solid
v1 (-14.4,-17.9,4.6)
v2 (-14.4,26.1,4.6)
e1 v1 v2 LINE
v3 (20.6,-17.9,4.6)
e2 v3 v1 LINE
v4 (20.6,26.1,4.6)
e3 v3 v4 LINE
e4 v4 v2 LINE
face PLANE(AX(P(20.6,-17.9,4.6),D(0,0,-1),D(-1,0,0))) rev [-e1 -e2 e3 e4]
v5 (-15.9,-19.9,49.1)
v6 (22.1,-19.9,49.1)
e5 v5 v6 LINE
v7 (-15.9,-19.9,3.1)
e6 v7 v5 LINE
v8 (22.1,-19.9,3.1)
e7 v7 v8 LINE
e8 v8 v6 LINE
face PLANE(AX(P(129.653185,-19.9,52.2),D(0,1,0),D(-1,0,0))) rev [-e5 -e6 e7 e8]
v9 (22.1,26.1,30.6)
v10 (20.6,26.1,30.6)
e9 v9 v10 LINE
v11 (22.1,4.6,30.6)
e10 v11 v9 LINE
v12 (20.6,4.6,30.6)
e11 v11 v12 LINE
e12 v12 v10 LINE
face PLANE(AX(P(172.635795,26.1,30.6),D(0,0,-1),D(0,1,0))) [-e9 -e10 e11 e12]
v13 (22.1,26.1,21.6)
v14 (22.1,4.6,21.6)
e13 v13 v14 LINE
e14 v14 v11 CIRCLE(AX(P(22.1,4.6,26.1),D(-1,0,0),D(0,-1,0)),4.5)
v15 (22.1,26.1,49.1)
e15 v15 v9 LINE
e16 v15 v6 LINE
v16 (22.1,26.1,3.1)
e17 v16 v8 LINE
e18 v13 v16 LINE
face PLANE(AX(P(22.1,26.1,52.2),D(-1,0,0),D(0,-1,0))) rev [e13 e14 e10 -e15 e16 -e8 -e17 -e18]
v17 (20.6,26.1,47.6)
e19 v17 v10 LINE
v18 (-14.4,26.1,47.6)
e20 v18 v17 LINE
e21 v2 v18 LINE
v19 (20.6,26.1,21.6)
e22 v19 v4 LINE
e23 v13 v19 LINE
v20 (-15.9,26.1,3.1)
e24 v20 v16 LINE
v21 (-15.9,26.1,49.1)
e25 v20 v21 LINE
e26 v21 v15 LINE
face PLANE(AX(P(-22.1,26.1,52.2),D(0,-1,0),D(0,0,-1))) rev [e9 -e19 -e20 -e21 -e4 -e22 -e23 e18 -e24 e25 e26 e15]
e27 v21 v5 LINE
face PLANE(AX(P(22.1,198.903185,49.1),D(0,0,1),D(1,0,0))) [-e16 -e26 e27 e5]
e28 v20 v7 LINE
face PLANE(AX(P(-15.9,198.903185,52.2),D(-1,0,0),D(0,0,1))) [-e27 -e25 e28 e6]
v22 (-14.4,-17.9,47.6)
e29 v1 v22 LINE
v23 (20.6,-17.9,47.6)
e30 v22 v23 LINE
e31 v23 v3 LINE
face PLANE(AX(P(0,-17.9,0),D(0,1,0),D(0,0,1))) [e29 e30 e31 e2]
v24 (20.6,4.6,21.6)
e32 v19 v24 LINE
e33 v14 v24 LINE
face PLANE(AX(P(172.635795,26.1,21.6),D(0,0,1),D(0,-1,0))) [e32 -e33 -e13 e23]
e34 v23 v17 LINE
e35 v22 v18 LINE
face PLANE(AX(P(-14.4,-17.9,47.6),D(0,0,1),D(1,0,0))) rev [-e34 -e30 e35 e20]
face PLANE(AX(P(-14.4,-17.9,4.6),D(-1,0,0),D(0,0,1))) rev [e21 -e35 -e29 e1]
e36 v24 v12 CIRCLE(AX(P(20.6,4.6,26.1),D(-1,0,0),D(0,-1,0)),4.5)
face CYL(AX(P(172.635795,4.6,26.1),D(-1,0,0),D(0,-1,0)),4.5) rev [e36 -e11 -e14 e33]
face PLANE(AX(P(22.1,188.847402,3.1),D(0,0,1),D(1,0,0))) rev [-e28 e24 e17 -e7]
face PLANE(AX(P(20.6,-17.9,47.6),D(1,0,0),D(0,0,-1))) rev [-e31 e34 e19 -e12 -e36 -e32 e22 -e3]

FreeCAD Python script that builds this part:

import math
import FreeCAD as App
import Part
import Sketcher
Q = App.Units.Quantity

doc = App.newDocument("Part")
params = doc.addObject("Spreadsheet::Sheet", "Params")
for row, (alias, value) in enumerate([
    ("sketch1_width", "44.2 mm"),
    ("sketch1_height", "52.2 mm"),
    ("pad1_length", "52.2 mm"),
    ("sketch2_width", "1 mm"),
    ("sketch2_height", "3.7 mm"),
    ("sketch2_width2", "1.55 mm"),
    ("sketch2_length", "5.06 mm"),
    ("sketch3_width", "1 mm"),
    ("sketch3_height", "3.7 mm"),
    ("sketch3_width2", "1.55 mm"),
    ("sketch3_length", "5.06 mm"),
    ("sketch4_width", "1 mm"),
    ("sketch4_height", "3.7 mm"),
    ("sketch4_width2", "1.55 mm"),
    ("sketch4_length", "5.06 mm"),
    ("pocket3_length", "78.059003 mm"),
    ("pocket3_length2", "46 mm"),
    ("sketch5_width", "1 mm"),
    ("sketch5_height", "3.7 mm"),
    ("sketch5_width2", "1.55 mm"),
    ("sketch5_length", "5.06 mm"),
    ("pocket4_length", "78.059003 mm"),
    ("pocket4_length2", "46 mm"),
    ("sketch9_width", "35 mm"),
    ("sketch9_height", "43 mm"),
    ("pocket8_length", "44 mm"),
    ("sketch10_radius", "4.5 mm"),
    ("sketch10_width", "21.5 mm"),
    ("pocket9_length", "72.032809 mm"),
    ("pocket9_length2", "1.5 mm"),
], start=1):
    params.set(f"A{row}", alias)
    params.set(f"B{row}", "=" + value)
    params.setAlias(f"B{row}", alias)

body = doc.addObject("PartDesign::Body", "Body")

sketch1 = body.newObject("Sketcher::SketchObject", "Sketch")
sketch1.AttachmentSupport = (doc.getObject("XY_Plane"), [""])
sketch1.MapMode = "FlatFace"
sketch1.addGeometry([
    Part.LineSegment(App.Vector(-22.1, 26.1, 0), App.Vector(-22.1, -26.1, 0)),
    Part.LineSegment(App.Vector(-22.1, -26.1, 0), App.Vector(22.1, -26.1, 0)),
    Part.LineSegment(App.Vector(22.1, -26.1, 0), App.Vector(22.1, 26.1, 0)),
    Part.LineSegment(App.Vector(22.1, 26.1, 0), App.Vector(-22.1, 26.1, 0)),
], False)
sketch1.addConstraint([
    Sketcher.Constraint("Coincident", 0, 2, 1, 1),
    Sketcher.Constraint("Coincident", 1, 2, 2, 1),
    Sketcher.Constraint("Coincident", 2, 2, 3, 1),
    Sketcher.Constraint("Coincident", 3, 2, 0, 1),
    Sketcher.Constraint("Vertical", 0),
    Sketcher.Constraint("Horizontal", 1),
    Sketcher.Constraint("Vertical", 2),
    Sketcher.Constraint("Horizontal", 3),
    Sketcher.Constraint("Symmetric", 0, 2, 2, 2, -1, 1),
    Sketcher.Constraint("DistanceX", 1, 1, 1, 2, Q("44.2 mm")),
    Sketcher.Constraint("DistanceY", 0, 2, 0, 1, Q("52.2 mm")),
])
sketch1.setExpression("Constraints[9]", "Params.sketch1_width")
sketch1.setExpression("Constraints[10]", "Params.sketch1_height")
pad1 = body.newObject("PartDesign::Pad", "Pad")
pad1.Profile = sketch1
pad1.setExpression("Length", "Params.pad1_length")

sketch2 = body.newObject("Sketcher::SketchObject", "Sketch001")
sketch2.AttachmentSupport = (doc.getObject("YZ_Plane"), [""])
sketch2.MapMode = "FlatFace"
sketch2.AttachmentOffset = App.Placement(App.Vector(0, 0, 22.1), App.Rotation())
sketch2.addGeometry([
    Part.LineSegment(App.Vector(-19.9, 28.55, 0), App.Vector(-19.9, 201.352291, 0)),
    Part.LineSegment(App.Vector(-19.9, 201.352291, 0), App.Vector(-295.671743, 315.086933, 0)),
    Part.LineSegment(App.Vector(-295.671743, 315.086933, 0), App.Vector(-409.461834, 39.180744, 0)),
    Part.LineSegment(App.Vector(-409.461834, 39.180744, 0), App.Vector(-133.690091, -74.553898, 0)),
    Part.LineSegment(App.Vector(-133.690091, -74.553898, 0), App.Vector(-26.1, 28.74556, 0)),
    Part.LineSegment(App.Vector(-26.1, 28.74556, 0), App.Vector(-22.45, 32.25, 0)),
    Part.LineSegment(App.Vector(-22.45, 32.25, 0), App.Vector(-21.45, 32.25, 0)),
    Part.LineSegment(App.Vector(-21.45, 32.25, 0), App.Vector(-21.45, 28.55, 0)),
    Part.LineSegment(App.Vector(-21.45, 28.55, 0), App.Vector(-19.9, 28.55, 0)),
], False)
sketch2.addConstraint([
    Sketcher.Constraint("Coincident", 0, 2, 1, 1),
    Sketcher.Constraint("Coincident", 1, 2, 2, 1),
    Sketcher.Constraint("Coincident", 2, 2, 3, 1),
    Sketcher.Constraint("Coincident", 3, 2, 4, 1),
    Sketcher.Constraint("Coincident", 4, 2, 5, 1),
    Sketcher.Constraint("Coincident", 5, 2, 6, 1),
    Sketcher.Constraint("Coincident", 6, 2, 7, 1),
    Sketcher.Constraint("Coincident", 7, 2, 8, 1),
    Sketcher.Constraint("Coincident", 8, 2, 0, 1),
    Sketcher.Constraint("Vertical", 0),
    Sketcher.Constraint("Horizontal", 6),
    Sketcher.Constraint("Vertical", 7),
    Sketcher.Constraint("Horizontal", 8),
    Sketcher.Constraint("Perpendicular", 1, 2),
    Sketcher.Constraint("Perpendicular", 2, 3),
    Sketcher.Constraint("Parallel", 4, 5),
    Sketcher.Constraint("Equal", 1, 3),
    Sketcher.Constraint("DistanceX", 6, 1, 6, 2, Q("1 mm")),
    Sketcher.Constraint("DistanceY", 7, 2, 7, 1, Q("3.7 mm")),
    Sketcher.Constraint("DistanceX", 8, 1, 8, 2, Q("1.55 mm")),
    Sketcher.Constraint("DistanceX", 0, 2, -1, 1, Q("19.9 mm")),
    Sketcher.Constraint("DistanceX", 4, 2, -1, 1, Q("26.1 mm")),
    Sketcher.Constraint("Distance", 5, Q("5.06 mm")),
    Sketcher.Constraint("DistanceY", -1, 1, 5, 2, Q("32.25 mm")),
    Sketcher.Constraint("DistanceY", 0, 1, 0, 2, Q("172.802291 mm")),
    Sketcher.Constraint("DistanceY", 3, 2, -1, 1, Q("74.553898 mm")),
    Sketcher.Constraint("Distance", 1, Q("298.304581 mm")),
])
sketch2.setExpression("Constraints[17]", "Params.sketch2_width")
sketch2.setExpression("Constraints[18]", "Params.sketch2_height")
sketch2.setExpression("Constraints[19]", "Params.sketch2_width2")
sketch2.setExpression("Constraints[22]", "Params.sketch2_length")
pocket1 = body.newObject("PartDesign::Pocket", "Pocket")
pocket1.Profile = sketch2
pocket1.Type = "ThroughAll"
pocket1.Midplane = True

sketch3 = body.newObject("Sketcher::SketchObject", "Sketch002")
sketch3.AttachmentSupport = (doc.getObject("YZ_Plane"), [""])
sketch3.MapMode = "FlatFace"
sketch3.AttachmentOffset = App.Placement(App.Vector(0, 0, 22.1), App.Rotation())
sketch3.addGeometry([
    Part.LineSegment(App.Vector(-19.9, -149.152291, 0), App.Vector(-19.9, 23.65, 0)),
    Part.LineSegment(App.Vector(-19.9, 23.65, 0), App.Vector(-21.45, 23.65, 0)),
    Part.LineSegment(App.Vector(-21.45, 23.65, 0), App.Vector(-21.45, 19.95, 0)),
    Part.LineSegment(App.Vector(-21.45, 19.95, 0), App.Vector(-22.45, 19.95, 0)),
    Part.LineSegment(App.Vector(-22.45, 19.95, 0), App.Vector(-26.1, 23.45444, 0)),
    Part.LineSegment(App.Vector(-26.1, 23.45444, 0), App.Vector(-133.690091, 126.753898, 0)),
    Part.LineSegment(App.Vector(-133.690091, 126.753898, 0), App.Vector(-409.461834, 13.019256, 0)),
    Part.LineSegment(App.Vector(-409.461834, 13.019256, 0), App.Vector(-295.671743, -262.886933, 0)),
    Part.LineSegment(App.Vector(-295.671743, -262.886933, 0), App.Vector(-19.9, -149.152291, 0)),
], False)
sketch3.addConstraint([
    Sketcher.Constraint("Coincident", 0, 2, 1, 1),
    Sketcher.Constraint("Coincident", 1, 2, 2, 1),
    Sketcher.Constraint("Coincident", 2, 2, 3, 1),
    Sketcher.Constraint("Coincident", 3, 2, 4, 1),
    Sketcher.Constraint("Coincident", 4, 2, 5, 1),
    Sketcher.Constraint("Coincident", 5, 2, 6, 1),
    Sketcher.Constraint("Coincident", 6, 2, 7, 1),
    Sketcher.Constraint("Coincident", 7, 2, 8, 1),
    Sketcher.Constraint("Coincident", 8, 2, 0, 1),
    Sketcher.Constraint("Vertical", 0),
    Sketcher.Constraint("Horizontal", 1),
    Sketcher.Constraint("Vertical", 2),
    Sketcher.Constraint("Horizontal", 3),
    Sketcher.Constraint("Parallel", 4, 5),
    Sketcher.Constraint("Perpendicular", 6, 7),
    Sketcher.Constraint("Perpendicular", 7, 8),
    Sketcher.Constraint("Equal", 6, 8),
    Sketcher.Constraint("DistanceX", 3, 2, 3, 1, Q("1 mm")),
    Sketcher.Constraint("DistanceY", 2, 2, 2, 1, Q("3.7 mm")),
    Sketcher.Constraint("DistanceX", 1, 2, 1, 1, Q("1.55 mm")),
    Sketcher.Constraint("DistanceX", 0, 2, -1, 1, Q("19.9 mm")),
    Sketcher.Constraint("DistanceX", 4, 2, -1, 1, Q("26.1 mm")),
    Sketcher.Constraint("Distance", 4, Q("5.06 mm")),
    Sketcher.Constraint("DistanceY", -1, 1, 0, 2, Q("23.65 mm")),
    Sketcher.Constraint("DistanceY", 0, 1, 0, 2, Q("172.802291 mm")),
    Sketcher.Constraint("DistanceY", -1, 1, 5, 2, Q("126.753898 mm")),
    Sketcher.Constraint("Distance", 6, Q("298.304581 mm")),
])
sketch3.setExpression("Constraints[17]", "Params.sketch3_width")
sketch3.setExpression("Constraints[18]", "Params.sketch3_height")
sketch3.setExpression("Constraints[19]", "Params.sketch3_width2")
sketch3.setExpression("Constraints[22]", "Params.sketch3_length")
pocket2 = body.newObject("PartDesign::Pocket", "Pocket001")
pocket2.Profile = sketch3
pocket2.Type = "ThroughAll"
pocket2.Midplane = True

sketch4 = body.newObject("Sketcher::SketchObject", "Sketch003")
sketch4.AttachmentSupport = (doc.getObject("XZ_Plane"), [""])
sketch4.MapMode = "FlatFace"
sketch4.AttachmentOffset = App.Placement(App.Vector(0, 0, -26.1), App.Rotation())
sketch4.addGeometry([
    Part.LineSegment(App.Vector(-15.9, 191.33311, 0), App.Vector(-15.9, 28.55, 0)),
    Part.LineSegment(App.Vector(-15.9, 28.55, 0), App.Vector(-17.45, 28.55, 0)),
    Part.LineSegment(App.Vector(-17.45, 28.55, 0), App.Vector(-17.45, 32.25, 0)),
    Part.LineSegment(App.Vector(-17.45, 32.25, 0), App.Vector(-18.45, 32.25, 0)),
    Part.LineSegment(App.Vector(-18.45, 32.25, 0), App.Vector(-22.1, 28.74556, 0)),
    Part.LineSegment(App.Vector(-22.1, 28.74556, 0), App.Vector(-122.462816, -67.614843, 0)),
    Part.LineSegment(App.Vector(-122.462816, -67.614843, 0), App.Vector(-379.791465, 38.281593, 0)),
    Part.LineSegment(App.Vector(-379.791465, 38.281593, 0), App.Vector(-273.228649, 297.229546, 0)),
    Part.LineSegment(App.Vector(-273.228649, 297.229546, 0), App.Vector(-15.9, 191.33311, 0)),
], False)
sketch4.addConstraint([
    Sketcher.Constraint("Coincident", 0, 2, 1, 1),
    Sketcher.Constraint("Coincident", 1, 2, 2, 1),
    Sketcher.Constraint("Coincident", 2, 2, 3, 1),
    Sketcher.Constraint("Coincident", 3, 2, 4, 1),
    Sketcher.Constraint("Coincident", 4, 2, 5, 1),
    Sketcher.Constraint("Coincident", 5, 2, 6, 1),
    Sketcher.Constraint("Coincident", 6, 2, 7, 1),
    Sketcher.Constraint("Coincident", 7, 2, 8, 1),
    Sketcher.Constraint("Coincident", 8, 2, 0, 1),
    Sketcher.Constraint("Vertical", 0),
    Sketcher.Constraint("Horizontal", 1),
    Sketcher.Constraint("Vertical", 2),
    Sketcher.Constraint("Horizontal", 3),
    Sketcher.Constraint("Parallel", 4, 5),
    Sketcher.Constraint("Perpendicular", 6, 7),
    Sketcher.Constraint("Perpendicular", 7, 8),
    Sketcher.Constraint("Equal", 6, 8),
    Sketcher.Constraint("DistanceX", 3, 2, 3, 1, Q("1 mm")),
    Sketcher.Constraint("DistanceY", 2, 1, 2, 2, Q("3.7 mm")),
    Sketcher.Constraint("DistanceX", 1, 2, 1, 1, Q("1.55 mm")),
    Sketcher.Constraint("DistanceX", 0, 2, -1, 1, Q("15.9 mm")),
    Sketcher.Constraint("DistanceX", 4, 2, -1, 1, Q("22.1 mm")),
    Sketcher.Constraint("Distance", 4, Q("5.06 mm")),
    Sketcher.Constraint("DistanceY", -1, 1, 0, 2, Q("28.55 mm")),
    Sketcher.Constraint("DistanceY", 0, 2, 0, 1, Q("162.78311 mm")),
    Sketcher.Constraint("Distance", 5, Q("139.13311 mm")),
    Sketcher.Constraint("Distance", 6, Q("278.266219 mm")),
])
sketch4.setExpression("Constraints[17]", "Params.sketch4_width")
sketch4.setExpression("Constraints[18]", "Params.sketch4_height")
sketch4.setExpression("Constraints[19]", "Params.sketch4_width2")
sketch4.setExpression("Constraints[22]", "Params.sketch4_length")
pocket3 = body.newObject("PartDesign::Pocket", "Pocket002")
pocket3.Profile = sketch4
pocket3.Type = "TwoLengths"
pocket3.setExpression("Length", "Params.pocket3_length")
pocket3.setExpression("Length2", "Params.pocket3_length2")

sketch5 = body.newObject("Sketcher::SketchObject", "Sketch004")
sketch5.AttachmentSupport = (doc.getObject("XZ_Plane"), [""])
sketch5.MapMode = "FlatFace"
sketch5.AttachmentOffset = App.Placement(App.Vector(0, 0, -26.1), App.Rotation())
sketch5.addGeometry([
    Part.LineSegment(App.Vector(-15.9, 23.65, 0), App.Vector(-15.9, -139.13311, 0)),
    Part.LineSegment(App.Vector(-15.9, -139.13311, 0), App.Vector(-273.228649, -245.029546, 0)),
    Part.LineSegment(App.Vector(-273.228649, -245.029546, 0), App.Vector(-379.791465, 13.918407, 0)),
    Part.LineSegment(App.Vector(-379.791465, 13.918407, 0), App.Vector(-122.462816, 119.814843, 0)),
    Part.LineSegment(App.Vector(-122.462816, 119.814843, 0), App.Vector(-22.1, 23.45444, 0)),
    Part.LineSegment(App.Vector(-22.1, 23.45444, 0), App.Vector(-18.45, 19.95, 0)),
    Part.LineSegment(App.Vector(-18.45, 19.95, 0), App.Vector(-17.45, 19.95, 0)),
    Part.LineSegment(App.Vector(-17.45, 19.95, 0), App.Vector(-17.45, 23.65, 0)),
    Part.LineSegment(App.Vector(-17.45, 23.65, 0), App.Vector(-15.9, 23.65, 0)),
], False)
sketch5.addConstraint([
    Sketcher.Constraint("Coincident", 0, 2, 1, 1),
    Sketcher.Constraint("Coincident", 1, 2, 2, 1),
    Sketcher.Constraint("Coincident", 2, 2, 3, 1),
    Sketcher.Constraint("Coincident", 3, 2, 4, 1),
    Sketcher.Constraint("Coincident", 4, 2, 5, 1),
    Sketcher.Constraint("Coincident", 5, 2, 6, 1),
    Sketcher.Constraint("Coincident", 6, 2, 7, 1),
    Sketcher.Constraint("Coincident", 7, 2, 8, 1),
    Sketcher.Constraint("Coincident", 8, 2, 0, 1),
    Sketcher.Constraint("Vertical", 0),
    Sketcher.Constraint("Horizontal", 6),
    Sketcher.Constraint("Vertical", 7),
    Sketcher.Constraint("Horizontal", 8),
    Sketcher.Constraint("Perpendicular", 1, 2),
    Sketcher.Constraint("Perpendicular", 2, 3),
    Sketcher.Constraint("Parallel", 4, 5),
    Sketcher.Constraint("Equal", 1, 3),
    Sketcher.Constraint("DistanceX", 6, 1, 6, 2, Q("1 mm")),
    Sketcher.Constraint("DistanceY", 7, 1, 7, 2, Q("3.7 mm")),
    Sketcher.Constraint("DistanceX", 8, 1, 8, 2, Q("1.55 mm")),
    Sketcher.Constraint("DistanceX", 0, 2, -1, 1, Q("15.9 mm")),
    Sketcher.Constraint("DistanceX", 4, 2, -1, 1, Q("22.1 mm")),
    Sketcher.Constraint("Distance", 5, Q("5.06 mm")),
    Sketcher.Constraint("DistanceY", -1, 1, 5, 2, Q("19.95 mm")),
    Sketcher.Constraint("DistanceY", 0, 2, 0, 1, Q("162.78311 mm")),
    Sketcher.Constraint("Distance", 1, Q("278.266219 mm")),
    Sketcher.Constraint("Distance", 2, Q("280.017278 mm")),
])
sketch5.setExpression("Constraints[17]", "Params.sketch5_width")
sketch5.setExpression("Constraints[18]", "Params.sketch5_height")
sketch5.setExpression("Constraints[19]", "Params.sketch5_width2")
sketch5.setExpression("Constraints[22]", "Params.sketch5_length")
pocket4 = body.newObject("PartDesign::Pocket", "Pocket003")
pocket4.Profile = sketch5
pocket4.Type = "TwoLengths"
pocket4.setExpression("Length", "Params.pocket4_length")
pocket4.setExpression("Length2", "Params.pocket4_length2")

sketch6 = body.newObject("Sketcher::SketchObject", "Sketch005")
sketch6.AttachmentSupport = (doc.getObject("XY_Plane"), [""])
sketch6.MapMode = "FlatFace"
sketch6.AttachmentOffset = App.Placement(App.Vector(0, 0, 28.55), App.Rotation())
sketch6.addGeometry([
    Part.LineSegment(App.Vector(-15.9, -19.9, 0), App.Vector(-161.222842, -19.9, 0)),
    Part.LineSegment(App.Vector(-161.222842, -19.9, 0), App.Vector(-357.967952, -216.653708, 0)),
    Part.LineSegment(App.Vector(-357.967952, -216.653708, 0), App.Vector(-212.645111, -361.9702, 0)),
    Part.LineSegment(App.Vector(-212.645111, -361.9702, 0), App.Vector(-15.9, -165.216491, 0)),
    Part.LineSegment(App.Vector(-15.9, -165.216491, 0), App.Vector(-15.9, -19.9, 0)),
], False)
sketch6.addConstraint([
    Sketcher.Constraint("Coincident", 0, 2, 1, 1),
    Sketcher.Constraint("Coincident", 1, 2, 2, 1),
    Sketcher.Constraint("Coincident", 2, 2, 3, 1),
    Sketcher.Constraint("Coincident", 3, 2, 4, 1),
    Sketcher.Constraint("Coincident", 4, 2, 0, 1),
    Sketcher.Constraint("Horizontal", 0),
    Sketcher.Constraint("Vertical", 4),
    Sketcher.Constraint("Perpendicular", 1, 2),
    Sketcher.Constraint("Perpendicular", 2, 3),
    Sketcher.Constraint("Equal", 1, 3),
    Sketcher.Constraint("DistanceY", 0, 2, -1, 1, Q("19.9 mm")),
    Sketcher.Constraint("DistanceX", 3, 2, -1, 1, Q("15.9 mm")),
    Sketcher.Constraint("DistanceX", 0, 2, 0, 1, Q("145.322842 mm")),
    Sketcher.Constraint("DistanceY", 4, 1, 4, 2, Q("145.316491 mm")),
    Sketcher.Constraint("DistanceY", 2, 2, -1, 1, Q("361.9702 mm")),
])
pocket5 = body.newObject("PartDesign::Pocket", "Pocket004")
pocket5.Profile = sketch6
pocket5.Type = "ThroughAll"
pocket5.Midplane = True

sketch7 = body.newObject("Sketcher::SketchObject", "Sketch006")
sketch7.AttachmentSupport = (doc.getObject("XZ_Plane"), [""])
sketch7.MapMode = "FlatFace"
sketch7.AttachmentOffset = App.Placement(App.Vector(0, 0, -26.1), App.Rotation())
sketch7.addGeometry([
    Part.LineSegment(App.Vector(164.227968, 49.1, 0), App.Vector(-158.027968, 49.1, 0)),
    Part.LineSegment(App.Vector(-158.027968, 49.1, 0), App.Vector(-158.027968, 333.355937, 0)),
    Part.LineSegment(App.Vector(-158.027968, 333.355937, 0), App.Vector(164.227968, 333.355937, 0)),
    Part.LineSegment(App.Vector(164.227968, 333.355937, 0), App.Vector(164.227968, 49.1, 0)),
], False)
sketch7.addConstraint([
    Sketcher.Constraint("Coincident", 0, 2, 1, 1),
    Sketcher.Constraint("Coincident", 1, 2, 2, 1),
    Sketcher.Constraint("Coincident", 2, 2, 3, 1),
    Sketcher.Constraint("Coincident", 3, 2, 0, 1),
    Sketcher.Constraint("Horizontal", 0),
    Sketcher.Constraint("Vertical", 1),
    Sketcher.Constraint("Horizontal", 2),
    Sketcher.Constraint("Vertical", 3),
    Sketcher.Constraint("DistanceY", -1, 1, 0, 2, Q("49.1 mm")),
    Sketcher.Constraint("DistanceX", 0, 2, 0, 1, Q("322.255937 mm")),
    Sketcher.Constraint("DistanceY", 1, 1, 1, 2, Q("284.255937 mm")),
    Sketcher.Constraint("DistanceX", 0, 2, -1, 1, Q("158.027968 mm")),
])
pocket6 = body.newObject("PartDesign::Pocket", "Pocket005")
pocket6.Profile = sketch7
pocket6.Type = "ThroughAll"
pocket6.Midplane = True

sketch8 = body.newObject("Sketcher::SketchObject", "Sketch007")
sketch8.AttachmentSupport = (doc.getObject("XZ_Plane"), [""])
sketch8.MapMode = "FlatFace"
sketch8.AttachmentOffset = App.Placement(App.Vector(0, 0, -26.1), App.Rotation())
sketch8.addGeometry([
    Part.LineSegment(App.Vector(-153.48746, 3.1, 0), App.Vector(159.68746, 3.1, 0)),
    Part.LineSegment(App.Vector(159.68746, 3.1, 0), App.Vector(159.68746, -272.07492, 0)),
    Part.LineSegment(App.Vector(159.68746, -272.07492, 0), App.Vector(-153.48746, -272.07492, 0)),
    Part.LineSegment(App.Vector(-153.48746, -272.07492, 0), App.Vector(-153.48746, 3.1, 0)),
], False)
sketch8.addConstraint([
    Sketcher.Constraint("Coincident", 0, 2, 1, 1),
    Sketcher.Constraint("Coincident", 1, 2, 2, 1),
    Sketcher.Constraint("Coincident", 2, 2, 3, 1),
    Sketcher.Constraint("Coincident", 3, 2, 0, 1),
    Sketcher.Constraint("Horizontal", 0),
    Sketcher.Constraint("Vertical", 1),
    Sketcher.Constraint("Horizontal", 2),
    Sketcher.Constraint("Vertical", 3),
    Sketcher.Constraint("DistanceY", -1, 1, 0, 2, Q("3.1 mm")),
    Sketcher.Constraint("DistanceX", 0, 1, 0, 2, Q("313.17492 mm")),
    Sketcher.Constraint("DistanceY", 1, 2, 1, 1, Q("275.17492 mm")),
    Sketcher.Constraint("DistanceX", -1, 1, 0, 2, Q("159.68746 mm")),
])
pocket7 = body.newObject("PartDesign::Pocket", "Pocket006")
pocket7.Profile = sketch8
pocket7.Type = "ThroughAll"
pocket7.Midplane = True

sketch9 = body.newObject("Sketcher::SketchObject", "Sketch008")
sketch9.AttachmentSupport = (doc.getObject("XZ_Plane"), [""])
sketch9.MapMode = "FlatFace"
sketch9.AttachmentOffset = App.Placement(App.Vector(0, 0, -26.1), App.Rotation())
sketch9.addGeometry([
    Part.LineSegment(App.Vector(-14.4, 4.6, 0), App.Vector(-14.4, 47.6, 0)),
    Part.LineSegment(App.Vector(-14.4, 47.6, 0), App.Vector(20.6, 47.6, 0)),
    Part.LineSegment(App.Vector(20.6, 47.6, 0), App.Vector(20.6, 4.6, 0)),
    Part.LineSegment(App.Vector(20.6, 4.6, 0), App.Vector(-14.4, 4.6, 0)),
], False)
sketch9.addConstraint([
    Sketcher.Constraint("Coincident", 0, 2, 1, 1),
    Sketcher.Constraint("Coincident", 1, 2, 2, 1),
    Sketcher.Constraint("Coincident", 2, 2, 3, 1),
    Sketcher.Constraint("Coincident", 3, 2, 0, 1),
    Sketcher.Constraint("Vertical", 0),
    Sketcher.Constraint("Horizontal", 1),
    Sketcher.Constraint("Vertical", 2),
    Sketcher.Constraint("Horizontal", 3),
    Sketcher.Constraint("DistanceX", 1, 1, 1, 2, Q("35 mm")),
    Sketcher.Constraint("DistanceY", 0, 1, 0, 2, Q("43 mm")),
    Sketcher.Constraint("DistanceX", 0, 2, -1, 1, Q("14.4 mm")),
    Sketcher.Constraint("DistanceY", -1, 1, 0, 2, Q("47.6 mm")),
])
sketch9.setExpression("Constraints[8]", "Params.sketch9_width")
sketch9.setExpression("Constraints[9]", "Params.sketch9_height")
pocket8 = body.newObject("PartDesign::Pocket", "Pocket007")
pocket8.Profile = sketch9
pocket8.setExpression("Length", "Params.pocket8_length")
pocket8.Reversed = True

sketch10 = body.newObject("Sketcher::SketchObject", "Sketch009")
sketch10.AttachmentSupport = (doc.getObject("YZ_Plane"), [""])
sketch10.MapMode = "FlatFace"
sketch10.AttachmentOffset = App.Placement(App.Vector(0, 0, 22.1), App.Rotation())
sketch10.addGeometry([
    Part.LineSegment(App.Vector(4.6, 21.6, 0), App.Vector(26.1, 21.6, 0)),
    Part.LineSegment(App.Vector(26.1, 21.6, 0), App.Vector(26.1, 30.6, 0)),
    Part.LineSegment(App.Vector(26.1, 30.6, 0), App.Vector(4.6, 30.6, 0)),
    Part.ArcOfCircle(Part.Circle(App.Vector(4.6, 26.1, 0), App.Vector(0, 0, 1), 4.5), math.radians(90), math.radians(270)),
], False)
sketch10.addConstraint([
    Sketcher.Constraint("Coincident", 0, 2, 1, 1),
    Sketcher.Constraint("Coincident", 1, 2, 2, 1),
    Sketcher.Constraint("Tangent", 2, 2, 3, 1),
    Sketcher.Constraint("Tangent", 3, 2, 0, 1),
    Sketcher.Constraint("Horizontal", 0),
    Sketcher.Constraint("Vertical", 1),
    Sketcher.Constraint("Horizontal", 2),
    Sketcher.Constraint("Radius", 3, Q("4.5 mm")),
    Sketcher.Constraint("DistanceX", 0, 1, 0, 2, Q("21.5 mm")),
    Sketcher.Constraint("DistanceX", -1, 1, 3, 3, Q("4.6 mm")),
    Sketcher.Constraint("DistanceY", -1, 1, 3, 3, Q("26.1 mm")),
])
sketch10.setExpression("Constraints[7]", "Params.sketch10_radius")
sketch10.setExpression("Constraints[8]", "Params.sketch10_width")
pocket9 = body.newObject("PartDesign::Pocket", "Pocket008")
pocket9.Profile = sketch10
pocket9.Type = "TwoLengths"
pocket9.setExpression("Length", "Params.pocket9_length")
pocket9.setExpression("Length2", "Params.pocket9_length2")
pocket9.Reversed = True

sketch11 = body.newObject("Sketcher::SketchObject", "Sketch010")
sketch11.AttachmentSupport = (doc.getObject("YZ_Plane"), [""])
sketch11.MapMode = "FlatFace"
sketch11.AttachmentOffset = App.Placement(App.Vector(0, 0, 22.1), App.Rotation())
sketch11.addGeometry([
    Part.LineSegment(App.Vector(-19.9, -91.491857, 0), App.Vector(-19.9, 143.691857, 0)),
    Part.LineSegment(App.Vector(-19.9, 143.691857, 0), App.Vector(-250.183713, 143.691857, 0)),
    Part.LineSegment(App.Vector(-250.183713, 143.691857, 0), App.Vector(-250.183713, -91.491857, 0)),
    Part.LineSegment(App.Vector(-250.183713, -91.491857, 0), App.Vector(-19.9, -91.491857, 0)),
], False)
sketch11.addConstraint([
    Sketcher.Constraint("Coincident", 0, 2, 1, 1),
    Sketcher.Constraint("Coincident", 1, 2, 2, 1),
    Sketcher.Constraint("Coincident", 2, 2, 3, 1),
    Sketcher.Constraint("Coincident", 3, 2, 0, 1),
    Sketcher.Constraint("Vertical", 0),
    Sketcher.Constraint("Horizontal", 1),
    Sketcher.Constraint("Vertical", 2),
    Sketcher.Constraint("Horizontal", 3),
    Sketcher.Constraint("DistanceX", 0, 2, -1, 1, Q("19.9 mm")),
    Sketcher.Constraint("DistanceX", 1, 2, 1, 1, Q("230.283713 mm")),
    Sketcher.Constraint("DistanceY", 0, 1, 0, 2, Q("235.183713 mm")),
    Sketcher.Constraint("DistanceY", -1, 1, 0, 2, Q("143.691857 mm")),
])
pocket10 = body.newObject("PartDesign::Pocket", "Pocket009")
pocket10.Profile = sketch11
pocket10.Type = "ThroughAll"
pocket10.Midplane = True

sketch12 = body.newObject("Sketcher::SketchObject", "Sketch011")
sketch12.AttachmentSupport = (doc.getObject("XZ_Plane"), [""])
sketch12.MapMode = "FlatFace"
sketch12.AttachmentOffset = App.Placement(App.Vector(0, 0, 19.9), App.Rotation())
sketch12.addGeometry([
    Part.LineSegment(App.Vector(-15.9, -77.820268, 0), App.Vector(-15.9, 130.020268, 0)),
    Part.LineSegment(App.Vector(-15.9, 130.020268, 0), App.Vector(-218.840537, 130.020268, 0)),
    Part.LineSegment(App.Vector(-218.840537, 130.020268, 0), App.Vector(-218.840537, -77.820268, 0)),
    Part.LineSegment(App.Vector(-218.840537, -77.820268, 0), App.Vector(-15.9, -77.820268, 0)),
], False)
sketch12.addConstraint([
    Sketcher.Constraint("Coincident", 0, 2, 1, 1),
    Sketcher.Constraint("Coincident", 1, 2, 2, 1),
    Sketcher.Constraint("Coincident", 2, 2, 3, 1),
    Sketcher.Constraint("Coincident", 3, 2, 0, 1),
    Sketcher.Constraint("Vertical", 0),
    Sketcher.Constraint("Horizontal", 1),
    Sketcher.Constraint("Vertical", 2),
    Sketcher.Constraint("Horizontal", 3),
    Sketcher.Constraint("DistanceX", 0, 2, -1, 1, Q("15.9 mm")),
    Sketcher.Constraint("DistanceX", 1, 2, 1, 1, Q("202.940537 mm")),
    Sketcher.Constraint("DistanceY", 0, 1, 0, 2, Q("207.840537 mm")),
    Sketcher.Constraint("DistanceY", -1, 1, 0, 2, Q("130.020268 mm")),
])
pocket11 = body.newObject("PartDesign::Pocket", "Pocket010")
pocket11.Profile = sketch12
pocket11.Type = "ThroughAll"
pocket11.Midplane = True

doc.recompute()
